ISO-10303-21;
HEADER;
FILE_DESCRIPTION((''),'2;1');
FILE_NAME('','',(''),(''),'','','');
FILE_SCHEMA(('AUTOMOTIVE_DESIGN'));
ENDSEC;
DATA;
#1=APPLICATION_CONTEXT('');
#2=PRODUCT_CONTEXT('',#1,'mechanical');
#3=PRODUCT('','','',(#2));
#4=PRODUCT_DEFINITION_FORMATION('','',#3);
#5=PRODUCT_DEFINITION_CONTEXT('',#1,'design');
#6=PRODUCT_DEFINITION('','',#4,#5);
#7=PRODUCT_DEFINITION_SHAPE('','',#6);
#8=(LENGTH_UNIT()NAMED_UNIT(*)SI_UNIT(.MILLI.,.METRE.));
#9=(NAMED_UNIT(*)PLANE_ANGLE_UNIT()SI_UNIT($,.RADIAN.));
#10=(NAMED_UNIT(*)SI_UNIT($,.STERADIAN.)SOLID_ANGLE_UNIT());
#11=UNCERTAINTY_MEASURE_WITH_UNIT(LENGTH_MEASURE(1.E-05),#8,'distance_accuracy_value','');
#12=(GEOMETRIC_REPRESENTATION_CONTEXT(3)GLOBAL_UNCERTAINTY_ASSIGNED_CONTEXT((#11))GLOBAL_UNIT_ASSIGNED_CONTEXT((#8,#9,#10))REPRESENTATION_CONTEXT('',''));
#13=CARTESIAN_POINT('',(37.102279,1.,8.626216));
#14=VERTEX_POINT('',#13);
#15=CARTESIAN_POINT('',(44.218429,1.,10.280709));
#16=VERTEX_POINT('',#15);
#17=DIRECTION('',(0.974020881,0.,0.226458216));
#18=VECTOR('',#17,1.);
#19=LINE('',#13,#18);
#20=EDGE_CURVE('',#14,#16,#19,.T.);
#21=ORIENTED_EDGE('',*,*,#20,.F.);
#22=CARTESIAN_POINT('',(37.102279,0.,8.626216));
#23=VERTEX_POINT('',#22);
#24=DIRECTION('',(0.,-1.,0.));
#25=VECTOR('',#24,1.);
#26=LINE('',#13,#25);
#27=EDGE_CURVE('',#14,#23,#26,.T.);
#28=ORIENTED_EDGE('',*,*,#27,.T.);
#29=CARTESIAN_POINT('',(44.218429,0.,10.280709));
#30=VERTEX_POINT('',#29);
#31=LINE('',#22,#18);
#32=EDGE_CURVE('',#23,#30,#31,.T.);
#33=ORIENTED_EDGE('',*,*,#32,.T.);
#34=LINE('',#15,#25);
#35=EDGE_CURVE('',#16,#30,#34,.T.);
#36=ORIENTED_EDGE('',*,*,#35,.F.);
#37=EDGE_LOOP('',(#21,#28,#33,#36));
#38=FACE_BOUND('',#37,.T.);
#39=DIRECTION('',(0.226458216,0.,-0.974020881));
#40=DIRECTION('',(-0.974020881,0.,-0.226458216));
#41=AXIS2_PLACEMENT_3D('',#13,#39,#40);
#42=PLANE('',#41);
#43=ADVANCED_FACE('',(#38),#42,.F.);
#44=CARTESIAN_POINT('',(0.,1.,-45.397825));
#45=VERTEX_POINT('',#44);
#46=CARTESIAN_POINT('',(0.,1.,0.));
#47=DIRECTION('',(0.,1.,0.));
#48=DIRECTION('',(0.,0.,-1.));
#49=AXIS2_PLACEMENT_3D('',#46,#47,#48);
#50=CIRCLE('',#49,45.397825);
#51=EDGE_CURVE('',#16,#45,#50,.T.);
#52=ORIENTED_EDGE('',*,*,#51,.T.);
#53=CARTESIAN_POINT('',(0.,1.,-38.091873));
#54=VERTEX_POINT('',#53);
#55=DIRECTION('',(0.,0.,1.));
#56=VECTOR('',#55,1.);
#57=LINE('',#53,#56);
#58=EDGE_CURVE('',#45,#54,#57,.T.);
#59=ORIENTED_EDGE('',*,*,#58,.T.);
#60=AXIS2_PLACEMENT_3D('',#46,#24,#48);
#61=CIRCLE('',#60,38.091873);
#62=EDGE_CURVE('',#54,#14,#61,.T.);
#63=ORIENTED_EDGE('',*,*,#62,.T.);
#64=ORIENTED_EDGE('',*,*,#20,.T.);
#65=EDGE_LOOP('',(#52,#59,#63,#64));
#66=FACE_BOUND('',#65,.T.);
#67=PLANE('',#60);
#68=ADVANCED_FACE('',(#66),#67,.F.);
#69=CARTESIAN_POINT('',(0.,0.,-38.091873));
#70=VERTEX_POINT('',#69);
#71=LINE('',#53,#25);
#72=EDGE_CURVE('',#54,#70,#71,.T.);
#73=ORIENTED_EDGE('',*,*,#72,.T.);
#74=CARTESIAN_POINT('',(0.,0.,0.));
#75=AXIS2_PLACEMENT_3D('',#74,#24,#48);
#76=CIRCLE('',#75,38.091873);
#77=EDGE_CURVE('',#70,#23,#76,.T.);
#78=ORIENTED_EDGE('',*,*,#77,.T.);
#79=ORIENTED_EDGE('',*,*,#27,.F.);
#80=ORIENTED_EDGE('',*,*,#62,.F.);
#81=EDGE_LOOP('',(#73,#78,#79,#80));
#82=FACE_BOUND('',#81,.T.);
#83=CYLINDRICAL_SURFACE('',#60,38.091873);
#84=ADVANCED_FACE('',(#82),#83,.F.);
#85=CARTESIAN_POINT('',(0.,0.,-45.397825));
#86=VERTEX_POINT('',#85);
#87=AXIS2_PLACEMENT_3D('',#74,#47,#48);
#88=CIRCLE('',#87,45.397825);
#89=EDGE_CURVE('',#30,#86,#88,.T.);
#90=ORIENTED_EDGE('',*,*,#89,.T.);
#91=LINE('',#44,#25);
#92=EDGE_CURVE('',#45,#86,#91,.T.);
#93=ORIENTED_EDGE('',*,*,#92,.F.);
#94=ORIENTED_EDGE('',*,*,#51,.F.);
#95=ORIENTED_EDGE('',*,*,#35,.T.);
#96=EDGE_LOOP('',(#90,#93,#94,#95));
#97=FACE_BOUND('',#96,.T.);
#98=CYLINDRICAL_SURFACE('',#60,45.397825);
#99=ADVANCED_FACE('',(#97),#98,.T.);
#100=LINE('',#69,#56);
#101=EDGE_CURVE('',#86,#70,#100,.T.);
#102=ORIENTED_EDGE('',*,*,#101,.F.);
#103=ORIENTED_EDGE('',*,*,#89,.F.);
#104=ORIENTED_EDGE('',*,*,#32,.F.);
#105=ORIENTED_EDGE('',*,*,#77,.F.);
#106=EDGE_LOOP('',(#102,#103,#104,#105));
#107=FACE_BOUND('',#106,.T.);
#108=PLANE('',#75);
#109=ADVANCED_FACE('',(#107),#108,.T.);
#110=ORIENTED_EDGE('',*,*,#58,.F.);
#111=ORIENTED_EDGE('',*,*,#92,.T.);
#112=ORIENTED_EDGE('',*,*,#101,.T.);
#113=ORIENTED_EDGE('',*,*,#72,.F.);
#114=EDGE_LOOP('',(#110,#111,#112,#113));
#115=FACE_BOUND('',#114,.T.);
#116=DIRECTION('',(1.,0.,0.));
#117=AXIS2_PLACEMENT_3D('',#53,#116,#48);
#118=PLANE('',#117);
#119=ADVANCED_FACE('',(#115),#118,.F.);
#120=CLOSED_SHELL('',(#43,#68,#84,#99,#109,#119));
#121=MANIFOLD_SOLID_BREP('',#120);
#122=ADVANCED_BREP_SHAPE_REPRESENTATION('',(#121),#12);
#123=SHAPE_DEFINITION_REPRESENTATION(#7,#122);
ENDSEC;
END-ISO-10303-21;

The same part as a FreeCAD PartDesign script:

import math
import FreeCAD as App
import Part
import Sketcher
from FreeCAD import Vector
Q = App.Units.Quantity

doc = App.newDocument("Part")
body = doc.addObject("PartDesign::Body", "Body")

# Sketch on XZ plane
sketch1 = body.newObject("Sketcher::SketchObject", "Sketch")
sketch1.AttachmentSupport = (doc.getObject("XZ_Plane"), [""])
sketch1.MapMode = "FlatFace"
sketch1.addGeometry([
    Part.LineSegment(Vector(0, -45, 0), Vector(0, -38, 0)),
    Part.ArcOfCircle(Part.Circle(Vector(0, 0, 0), Vector(0, 0, 1), 38), math.radians(-90), math.radians(13)),
    Part.LineSegment(Vector(37, 9, 0), Vector(44, 10, 0)),
    Part.ArcOfCircle(Part.Circle(Vector(0, 0, 0), Vector(0, 0, 1), 45), math.radians(-90), math.radians(13)),
], False)
sketch1.addConstraint([
    Sketcher.Constraint("Coincident", 0, 2, 1, 1),
    Sketcher.Constraint("Coincident", 1, 2, 2, 1),
    Sketcher.Constraint("Coincident", 2, 2, 3, 2),
    Sketcher.Constraint("Coincident", 3, 1, 0, 1),
    Sketcher.Constraint("Vertical", 0),
    Sketcher.Constraint("Coincident", 1, 3, -1, 1),
    Sketcher.Constraint("Coincident", 3, 3, -1, 1),
    Sketcher.Constraint("PointOnObject", 0, 2, -2),
    Sketcher.Constraint("Radius", 1, Q("38.091873 mm")),
    Sketcher.Constraint("Radius", 3, Q("45.397825 mm")),
    Sketcher.Constraint("DistanceX", -1, 1, 1, 2, Q("37.102279 mm")),
    Sketcher.Constraint("DistanceX", -1, 1, 2, 2, Q("44.218429 mm")),
])
pad1 = body.newObject("PartDesign::Pad", "Pad")
pad1.Profile = sketch1
pad1.Length = 1
pad1.Reversed = True

doc.recompute()
